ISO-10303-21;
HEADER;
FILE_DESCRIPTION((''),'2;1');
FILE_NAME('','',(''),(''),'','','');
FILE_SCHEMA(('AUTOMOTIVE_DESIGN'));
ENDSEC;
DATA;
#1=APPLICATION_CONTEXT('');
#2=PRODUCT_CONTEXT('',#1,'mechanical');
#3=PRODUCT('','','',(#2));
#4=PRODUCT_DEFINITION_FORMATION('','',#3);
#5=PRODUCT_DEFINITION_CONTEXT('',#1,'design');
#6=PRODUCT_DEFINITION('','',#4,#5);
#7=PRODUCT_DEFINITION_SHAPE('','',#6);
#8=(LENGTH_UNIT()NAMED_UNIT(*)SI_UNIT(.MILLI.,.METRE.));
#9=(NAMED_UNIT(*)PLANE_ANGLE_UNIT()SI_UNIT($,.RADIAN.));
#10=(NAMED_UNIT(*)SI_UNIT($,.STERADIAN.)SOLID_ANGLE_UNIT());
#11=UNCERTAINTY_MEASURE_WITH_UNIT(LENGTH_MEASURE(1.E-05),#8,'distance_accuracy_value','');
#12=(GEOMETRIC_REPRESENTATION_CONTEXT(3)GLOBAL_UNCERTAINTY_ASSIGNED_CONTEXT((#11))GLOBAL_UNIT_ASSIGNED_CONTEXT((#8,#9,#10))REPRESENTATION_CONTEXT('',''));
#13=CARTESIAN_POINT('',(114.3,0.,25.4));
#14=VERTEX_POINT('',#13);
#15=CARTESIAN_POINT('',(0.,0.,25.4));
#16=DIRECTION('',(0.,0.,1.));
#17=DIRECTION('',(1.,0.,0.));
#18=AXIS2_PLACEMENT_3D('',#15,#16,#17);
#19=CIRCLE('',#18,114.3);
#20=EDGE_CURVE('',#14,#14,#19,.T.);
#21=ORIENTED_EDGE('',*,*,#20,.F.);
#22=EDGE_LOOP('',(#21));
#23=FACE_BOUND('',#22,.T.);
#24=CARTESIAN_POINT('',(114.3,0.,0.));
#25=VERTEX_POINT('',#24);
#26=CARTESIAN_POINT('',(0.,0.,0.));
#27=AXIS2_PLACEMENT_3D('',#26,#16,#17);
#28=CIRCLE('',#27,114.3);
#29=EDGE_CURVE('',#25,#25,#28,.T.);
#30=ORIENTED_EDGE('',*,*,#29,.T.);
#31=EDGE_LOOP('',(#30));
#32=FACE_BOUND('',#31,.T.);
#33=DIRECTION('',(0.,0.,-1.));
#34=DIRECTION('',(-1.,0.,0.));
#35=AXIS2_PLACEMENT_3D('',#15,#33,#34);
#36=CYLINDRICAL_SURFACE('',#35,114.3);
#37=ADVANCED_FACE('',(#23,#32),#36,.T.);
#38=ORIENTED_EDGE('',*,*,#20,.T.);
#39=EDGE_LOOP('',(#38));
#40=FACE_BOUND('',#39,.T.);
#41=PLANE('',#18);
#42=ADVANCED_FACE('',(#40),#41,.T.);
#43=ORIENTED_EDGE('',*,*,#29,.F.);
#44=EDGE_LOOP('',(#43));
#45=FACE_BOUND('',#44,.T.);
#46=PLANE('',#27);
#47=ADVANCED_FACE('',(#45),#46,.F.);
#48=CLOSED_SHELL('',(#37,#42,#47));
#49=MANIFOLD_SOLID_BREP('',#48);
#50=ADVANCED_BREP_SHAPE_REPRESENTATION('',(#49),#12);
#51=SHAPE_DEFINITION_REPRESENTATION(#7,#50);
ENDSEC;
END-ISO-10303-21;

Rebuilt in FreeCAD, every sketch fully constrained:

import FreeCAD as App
import Part
import Sketcher

V = App.Vector
Q = App.Units.Quantity

doc = App.newDocument("Part")
body = doc.addObject("PartDesign::Body", "Body")

sketch1 = doc.addObject("Sketcher::SketchObject", "Sketch")
body.addObject(sketch1)
sketch1.AttachmentSupport = (doc.XY_Plane, [""])
sketch1.MapMode = "FlatFace"
sketch1.addGeometry(Part.Circle(V(0, 0, 0), V(0, 0, 1), 114), False)
sketch1.addConstraint(Sketcher.Constraint("Coincident", 0, 3, -1, 1))
sketch1.addConstraint(Sketcher.Constraint("Diameter", 0, Q("9 in")))
pad1 = doc.addObject("PartDesign::Pad", "Pad")
body.addObject(pad1)
pad1.Profile = sketch1
pad1.Length = Q("1 in")

doc.recompute()
